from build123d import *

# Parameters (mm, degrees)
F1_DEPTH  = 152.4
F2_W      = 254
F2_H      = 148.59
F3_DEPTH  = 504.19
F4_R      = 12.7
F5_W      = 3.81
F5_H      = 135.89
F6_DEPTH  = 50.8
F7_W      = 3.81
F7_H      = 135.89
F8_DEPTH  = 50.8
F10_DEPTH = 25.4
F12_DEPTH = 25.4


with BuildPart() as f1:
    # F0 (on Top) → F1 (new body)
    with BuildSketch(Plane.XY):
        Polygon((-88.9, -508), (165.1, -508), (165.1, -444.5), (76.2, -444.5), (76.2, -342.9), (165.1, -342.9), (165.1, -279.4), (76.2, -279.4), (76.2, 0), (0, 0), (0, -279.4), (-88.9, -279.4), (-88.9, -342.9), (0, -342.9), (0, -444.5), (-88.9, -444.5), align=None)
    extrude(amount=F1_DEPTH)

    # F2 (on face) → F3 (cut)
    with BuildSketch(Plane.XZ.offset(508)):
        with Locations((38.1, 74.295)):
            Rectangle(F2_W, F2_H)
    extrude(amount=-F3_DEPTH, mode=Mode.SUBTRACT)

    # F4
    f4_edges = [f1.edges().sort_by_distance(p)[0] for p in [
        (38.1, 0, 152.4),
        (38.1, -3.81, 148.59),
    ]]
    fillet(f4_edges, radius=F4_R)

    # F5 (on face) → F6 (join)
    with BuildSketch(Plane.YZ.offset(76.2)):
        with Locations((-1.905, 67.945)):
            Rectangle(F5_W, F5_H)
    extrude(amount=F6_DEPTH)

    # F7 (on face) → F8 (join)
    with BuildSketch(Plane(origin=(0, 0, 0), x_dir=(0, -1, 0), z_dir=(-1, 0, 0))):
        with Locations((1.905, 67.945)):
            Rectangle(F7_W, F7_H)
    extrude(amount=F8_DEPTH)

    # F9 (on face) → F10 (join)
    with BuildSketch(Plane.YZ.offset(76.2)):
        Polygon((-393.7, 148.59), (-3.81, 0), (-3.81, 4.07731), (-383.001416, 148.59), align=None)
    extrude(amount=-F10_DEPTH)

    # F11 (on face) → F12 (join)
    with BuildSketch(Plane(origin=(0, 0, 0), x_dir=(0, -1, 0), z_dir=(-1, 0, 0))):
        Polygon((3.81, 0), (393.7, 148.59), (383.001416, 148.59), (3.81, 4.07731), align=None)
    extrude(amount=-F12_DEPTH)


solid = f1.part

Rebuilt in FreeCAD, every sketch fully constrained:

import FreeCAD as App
import Part
import Sketcher

V = App.Vector
Q = App.Units.Quantity


def edges_at(feature, points):
    """Names of the edges that pass closest to the given points."""
    edges = feature.Shape.Edges
    near = lambda p: min(range(len(edges)), key=lambda i: edges[i].distToShape(Part.Vertex(*p))[0])
    return sorted({f"Edge{near(p) + 1}" for p in points})


def add_polygon(sketch, points):
    """Adds a closed chain of lines whose ends are joined by coincident constraints."""
    first, n = sketch.GeometryCount, len(points)
    for a, b in zip(points, points[1:] + points[:1]):
        sketch.addGeometry(Part.LineSegment(App.Vector(*a, 0), App.Vector(*b, 0)), False)
    for i in range(n):
        sketch.addConstraint(Sketcher.Constraint("Coincident", first + i, 2, first + (i + 1) % n, 1))

doc = App.newDocument("Part")
params = doc.addObject("Spreadsheet::Sheet", "Params")
for row, (alias, value) in enumerate([
    ("sketch1_width", "10 in"),
    ("sketch1_width2", "3 in"),
    ("sketch1_height", "4 in"),
    ("sketch1_height2", "11 in"),
    ("sketch1_height3", "2.5 in"),
    ("pad1_length", "6 in"),
    ("sketch2_width", "10 in"),
    ("sketch2_height", "5.85 in"),
    ("pocket1_length", "19.85 in"),
    ("fillet_radius", "0.5 in"),
    ("sketch3_width", "0.15 in"),
    ("sketch3_height", "5.35 in"),
    ("pad2_length", "2 in"),
    ("sketch4_width", "0.15 in"),
    ("sketch4_height", "5.35 in"),
    ("pad3_length", "2 in"),
    ("pad4_length", "1 in"),
    ("pad5_length", "1 in"),
], start=1):
    params.set(f"A{row}", alias)
    params.set(f"B{row}", "=" + value)
    params.setAlias(f"B{row}", alias)

body = doc.addObject("PartDesign::Body", "Body")

# Sketch on XY plane
sketch1 = body.newObject("Sketcher::SketchObject", "Sketch")
sketch1.AttachmentSupport = (doc.getObject("XY_Plane"), [""])
sketch1.MapMode = "FlatFace"
add_polygon(sketch1, [(-88.9, -508), (165.1, -508), (165.1, -444.5), (76.2, -444.5), (76.2, -342.9), (165.1, -342.9), (165.1, -279.4), (76.2, -279.4), (76.2, 0), (0, 0), (0, -279.4), (-88.9, -279.4), (-88.9, -342.9), (0, -342.9), (0, -444.5), (-88.9, -444.5)])  # lines 0-15
sketch1.addConstraint(Sketcher.Constraint("Horizontal", 0))
sketch1.addConstraint(Sketcher.Constraint("Vertical", 1))
sketch1.addConstraint(Sketcher.Constraint("Horizontal", 2))
sketch1.addConstraint(Sketcher.Constraint("Vertical", 3))
sketch1.addConstraint(Sketcher.Constraint("Horizontal", 4))
sketch1.addConstraint(Sketcher.Constraint("Vertical", 5))
sketch1.addConstraint(Sketcher.Constraint("Horizontal", 6))
sketch1.addConstraint(Sketcher.Constraint("Vertical", 7))
sketch1.addConstraint(Sketcher.Constraint("Horizontal", 8))
sketch1.addConstraint(Sketcher.Constraint("Vertical", 9))
sketch1.addConstraint(Sketcher.Constraint("Horizontal", 10))
sketch1.addConstraint(Sketcher.Constraint("Vertical", 11))
sketch1.addConstraint(Sketcher.Constraint("Horizontal", 12))
sketch1.addConstraint(Sketcher.Constraint("Vertical", 13))
sketch1.addConstraint(Sketcher.Constraint("Horizontal", 14))
sketch1.addConstraint(Sketcher.Constraint("Vertical", 15))
sketch1.addConstraint(Sketcher.Constraint("Coincident", 8, 2, -1, 1))
sketch1.addConstraint(Sketcher.Constraint("PointOnObject", 12, 2, -2))
sketch1.addConstraint(Sketcher.Constraint("Horizontal", 6, 2, 9, 2))
sketch1.addConstraint(Sketcher.Constraint("Horizontal", 4, 2, 11, 2))
sketch1.addConstraint(Sketcher.Constraint("Horizontal", 2, 2, 13, 2))
sketch1.addConstraint(Sketcher.Constraint("Vertical", 1, 2, 4, 2))
sketch1.addConstraint(Sketcher.Constraint("Vertical", 3, 2, 6, 2))
sketch1.addConstraint(Sketcher.Constraint("Vertical", 11, 2, 14, 2))
sketch1.addConstraint(Sketcher.Constraint("Equal", 6, 10))
sketch1.addConstraint(Sketcher.Constraint("Equal", 1, 5))
sketch1.addConstraint(Sketcher.Constraint("DistanceX", 0, 1, 0, 2, Q("10 in")))
sketch1.addConstraint(Sketcher.Constraint("DistanceX", 8, 2, 8, 1, Q("3 in")))
sketch1.addConstraint(Sketcher.Constraint("DistanceY", 3, 1, 3, 2, Q("4 in")))
sketch1.addConstraint(Sketcher.Constraint("DistanceY", 7, 1, 7, 2, Q("11 in")))
sketch1.addConstraint(Sketcher.Constraint("DistanceY", 1, 1, 1, 2, Q("2.5 in")))
sketch1.setExpression("Constraints[42]", "Params.sketch1_width")
sketch1.setExpression("Constraints[43]", "Params.sketch1_width2")
sketch1.setExpression("Constraints[44]", "Params.sketch1_height")
sketch1.setExpression("Constraints[45]", "Params.sketch1_height2")
sketch1.setExpression("Constraints[46]", "Params.sketch1_height3")
pad1 = body.newObject("PartDesign::Pad", "Pad")
pad1.Profile = sketch1
pad1.setExpression("Length", "Params.pad1_length")

# Sketch on XZ plane
sketch2 = body.newObject("Sketcher::SketchObject", "Sketch001")
sketch2.AttachmentSupport = (doc.getObject("XZ_Plane"), [""])
sketch2.MapMode = "FlatFace"
sketch2.AttachmentOffset = App.Placement(V(0, 0, 20 * 25.4), App.Rotation())
add_polygon(sketch2, [(-88.9, 148.59), (-88.9, 0), (165.1, 0), (165.1, 148.59)])  # lines 0-3
sketch2.addConstraint(Sketcher.Constraint("Vertical", 0))
sketch2.addConstraint(Sketcher.Constraint("Horizontal", 1))
sketch2.addConstraint(Sketcher.Constraint("Vertical", 2))
sketch2.addConstraint(Sketcher.Constraint("Horizontal", 3))
sketch2.addConstraint(Sketcher.Constraint("PointOnObject", 0, 2, -1))
sketch2.addConstraint(Sketcher.Constraint("DistanceX", 1, 1, 1, 2, Q("10 in")))
sketch2.addConstraint(Sketcher.Constraint("DistanceY", 0, 2, 0, 1, Q("5.85 in")))
sketch2.addConstraint(Sketcher.Constraint("DistanceX", 0, 2, -1, 1, Q("3.5 in")))
sketch2.setExpression("Constraints[9]", "Params.sketch2_width")
sketch2.setExpression("Constraints[10]", "Params.sketch2_height")
pocket1 = body.newObject("PartDesign::Pocket", "Pocket")
pocket1.Profile = sketch2
pocket1.setExpression("Length", "Params.pocket1_length")
doc.recompute()

fillet = body.newObject("PartDesign::Fillet", "Fillet")
fillet.Base = (pocket1, edges_at(pocket1, [(38.1, 0, 152.4), (38.1, -3.81, 148.59)]))
fillet.setExpression("Radius", "Params.fillet_radius")

# Sketch on YZ plane
sketch3 = body.newObject("Sketcher::SketchObject", "Sketch002")
sketch3.AttachmentSupport = (doc.getObject("YZ_Plane"), [""])
sketch3.MapMode = "FlatFace"
sketch3.AttachmentOffset = App.Placement(V(0, 0, 3 * 25.4), App.Rotation())
add_polygon(sketch3, [(-3.81, 135.89), (-3.81, 0), (0, 0), (0, 135.89)])  # lines 0-3
sketch3.addConstraint(Sketcher.Constraint("Vertical", 0))
sketch3.addConstraint(Sketcher.Constraint("Horizontal", 1))
sketch3.addConstraint(Sketcher.Constraint("Vertical", 2))
sketch3.addConstraint(Sketcher.Constraint("Horizontal", 3))
sketch3.addConstraint(Sketcher.Constraint("Coincident", 1, 2, -1, 1))
sketch3.addConstraint(Sketcher.Constraint("DistanceX", 1, 1, 1, 2, Q("0.15 in")))
sketch3.addConstraint(Sketcher.Constraint("DistanceY", 0, 2, 0, 1, Q("5.35 in")))
sketch3.setExpression("Constraints[9]", "Params.sketch3_width")
sketch3.setExpression("Constraints[10]", "Params.sketch3_height")
pad2 = body.newObject("PartDesign::Pad", "Pad001")
pad2.Profile = sketch3
pad2.setExpression("Length", "Params.pad2_length")

# Sketch on YZ plane
sketch4 = body.newObject("Sketcher::SketchObject", "Sketch003")
sketch4.AttachmentSupport = (doc.getObject("YZ_Plane"), [""])
sketch4.MapMode = "FlatFace"
add_polygon(sketch4, [(0, 135.89), (0, 0), (-3.81, 0), (-3.81, 135.89)])  # lines 0-3
sketch4.addConstraint(Sketcher.Constraint("Vertical", 0))
sketch4.addConstraint(Sketcher.Constraint("Horizontal", 1))
sketch4.addConstraint(Sketcher.Constraint("Vertical", 2))
sketch4.addConstraint(Sketcher.Constraint("Horizontal", 3))
sketch4.addConstraint(Sketcher.Constraint("Coincident", 0, 2, -1, 1))
sketch4.addConstraint(Sketcher.Constraint("DistanceX", 1, 2, 1, 1, Q("0.15 in")))
sketch4.addConstraint(Sketcher.Constraint("DistanceY", 0, 2, 0, 1, Q("5.35 in")))
sketch4.setExpression("Constraints[9]", "Params.sketch4_width")
sketch4.setExpression("Constraints[10]", "Params.sketch4_height")
pad3 = body.newObject("PartDesign::Pad", "Pad002")
pad3.Profile = sketch4
pad3.setExpression("Length", "Params.pad3_length")
pad3.Reversed = True

# Sketch on YZ plane
sketch5 = body.newObject("Sketcher::SketchObject", "Sketch004")
sketch5.AttachmentSupport = (doc.getObject("YZ_Plane"), [""])
sketch5.MapMode = "FlatFace"
sketch5.AttachmentOffset = App.Placement(V(0, 0, 3 * 25.4), App.Rotation())
add_polygon(sketch5, [(-393.7, 148.59), (-3.81, 0), (-3.81, 4.07731), (-383.001416, 148.59)])  # lines 0-3
sketch5.addConstraint(Sketcher.Constraint("Vertical", 1))
sketch5.addConstraint(Sketcher.Constraint("Horizontal", 3))
sketch5.addConstraint(Sketcher.Constraint("PointOnObject", 0, 2, -1))
sketch5.addConstraint(Sketcher.Constraint("Parallel", 0, 2))
sketch5.addConstraint(Sketcher.Constraint("DistanceX", 3, 2, -1, 1, Q("15.5 in")))
sketch5.addConstraint(Sketcher.Constraint("DistanceX", 0, 2, -1, 1, Q("0.15 in")))
sketch5.addConstraint(Sketcher.Constraint("DistanceY", -1, 1, 2, 2, Q("5.85 in")))
sketch5.addConstraint(Sketcher.Constraint("DistanceY", 1, 1, 1, 2, Q("4.07731 mm")))
pad4 = body.newObject("PartDesign::Pad", "Pad003")
pad4.Profile = sketch5
pad4.setExpression("Length", "Params.pad4_length")
pad4.Reversed = True

# Sketch on YZ plane
sketch6 = body.newObject("Sketcher::SketchObject", "Sketch005")
sketch6.AttachmentSupport = (doc.getObject("YZ_Plane"), [""])
sketch6.MapMode = "FlatFace"
add_polygon(sketch6, [(-3.81, 0), (-393.7, 148.59), (-383.001416, 148.59), (-3.81, 4.07731)])  # lines 0-3
sketch6.addConstraint(Sketcher.Constraint("Horizontal", 1))
sketch6.addConstraint(Sketcher.Constraint("Vertical", 3))
sketch6.addConstraint(Sketcher.Constraint("PointOnObject", 3, 2, -1))
sketch6.addConstraint(Sketcher.Constraint("Parallel", 0, 2))
sketch6.addConstraint(Sketcher.Constraint("DistanceX", 0, 2, -1, 1, Q("15.5 in")))
sketch6.addConstraint(Sketcher.Constraint("DistanceY", -1, 1, 0, 2, Q("5.85 in")))
sketch6.addConstraint(Sketcher.Constraint("DistanceX", 2, 2, -1, 1, Q("0.15 in")))
sketch6.addConstraint(Sketcher.Constraint("DistanceY", 3, 2, 3, 1, Q("4.07731 mm")))
pad5 = body.newObject("PartDesign::Pad", "Pad004")
pad5.Profile = sketch6
pad5.setExpression("Length", "Params.pad5_length")

doc.recompute()
